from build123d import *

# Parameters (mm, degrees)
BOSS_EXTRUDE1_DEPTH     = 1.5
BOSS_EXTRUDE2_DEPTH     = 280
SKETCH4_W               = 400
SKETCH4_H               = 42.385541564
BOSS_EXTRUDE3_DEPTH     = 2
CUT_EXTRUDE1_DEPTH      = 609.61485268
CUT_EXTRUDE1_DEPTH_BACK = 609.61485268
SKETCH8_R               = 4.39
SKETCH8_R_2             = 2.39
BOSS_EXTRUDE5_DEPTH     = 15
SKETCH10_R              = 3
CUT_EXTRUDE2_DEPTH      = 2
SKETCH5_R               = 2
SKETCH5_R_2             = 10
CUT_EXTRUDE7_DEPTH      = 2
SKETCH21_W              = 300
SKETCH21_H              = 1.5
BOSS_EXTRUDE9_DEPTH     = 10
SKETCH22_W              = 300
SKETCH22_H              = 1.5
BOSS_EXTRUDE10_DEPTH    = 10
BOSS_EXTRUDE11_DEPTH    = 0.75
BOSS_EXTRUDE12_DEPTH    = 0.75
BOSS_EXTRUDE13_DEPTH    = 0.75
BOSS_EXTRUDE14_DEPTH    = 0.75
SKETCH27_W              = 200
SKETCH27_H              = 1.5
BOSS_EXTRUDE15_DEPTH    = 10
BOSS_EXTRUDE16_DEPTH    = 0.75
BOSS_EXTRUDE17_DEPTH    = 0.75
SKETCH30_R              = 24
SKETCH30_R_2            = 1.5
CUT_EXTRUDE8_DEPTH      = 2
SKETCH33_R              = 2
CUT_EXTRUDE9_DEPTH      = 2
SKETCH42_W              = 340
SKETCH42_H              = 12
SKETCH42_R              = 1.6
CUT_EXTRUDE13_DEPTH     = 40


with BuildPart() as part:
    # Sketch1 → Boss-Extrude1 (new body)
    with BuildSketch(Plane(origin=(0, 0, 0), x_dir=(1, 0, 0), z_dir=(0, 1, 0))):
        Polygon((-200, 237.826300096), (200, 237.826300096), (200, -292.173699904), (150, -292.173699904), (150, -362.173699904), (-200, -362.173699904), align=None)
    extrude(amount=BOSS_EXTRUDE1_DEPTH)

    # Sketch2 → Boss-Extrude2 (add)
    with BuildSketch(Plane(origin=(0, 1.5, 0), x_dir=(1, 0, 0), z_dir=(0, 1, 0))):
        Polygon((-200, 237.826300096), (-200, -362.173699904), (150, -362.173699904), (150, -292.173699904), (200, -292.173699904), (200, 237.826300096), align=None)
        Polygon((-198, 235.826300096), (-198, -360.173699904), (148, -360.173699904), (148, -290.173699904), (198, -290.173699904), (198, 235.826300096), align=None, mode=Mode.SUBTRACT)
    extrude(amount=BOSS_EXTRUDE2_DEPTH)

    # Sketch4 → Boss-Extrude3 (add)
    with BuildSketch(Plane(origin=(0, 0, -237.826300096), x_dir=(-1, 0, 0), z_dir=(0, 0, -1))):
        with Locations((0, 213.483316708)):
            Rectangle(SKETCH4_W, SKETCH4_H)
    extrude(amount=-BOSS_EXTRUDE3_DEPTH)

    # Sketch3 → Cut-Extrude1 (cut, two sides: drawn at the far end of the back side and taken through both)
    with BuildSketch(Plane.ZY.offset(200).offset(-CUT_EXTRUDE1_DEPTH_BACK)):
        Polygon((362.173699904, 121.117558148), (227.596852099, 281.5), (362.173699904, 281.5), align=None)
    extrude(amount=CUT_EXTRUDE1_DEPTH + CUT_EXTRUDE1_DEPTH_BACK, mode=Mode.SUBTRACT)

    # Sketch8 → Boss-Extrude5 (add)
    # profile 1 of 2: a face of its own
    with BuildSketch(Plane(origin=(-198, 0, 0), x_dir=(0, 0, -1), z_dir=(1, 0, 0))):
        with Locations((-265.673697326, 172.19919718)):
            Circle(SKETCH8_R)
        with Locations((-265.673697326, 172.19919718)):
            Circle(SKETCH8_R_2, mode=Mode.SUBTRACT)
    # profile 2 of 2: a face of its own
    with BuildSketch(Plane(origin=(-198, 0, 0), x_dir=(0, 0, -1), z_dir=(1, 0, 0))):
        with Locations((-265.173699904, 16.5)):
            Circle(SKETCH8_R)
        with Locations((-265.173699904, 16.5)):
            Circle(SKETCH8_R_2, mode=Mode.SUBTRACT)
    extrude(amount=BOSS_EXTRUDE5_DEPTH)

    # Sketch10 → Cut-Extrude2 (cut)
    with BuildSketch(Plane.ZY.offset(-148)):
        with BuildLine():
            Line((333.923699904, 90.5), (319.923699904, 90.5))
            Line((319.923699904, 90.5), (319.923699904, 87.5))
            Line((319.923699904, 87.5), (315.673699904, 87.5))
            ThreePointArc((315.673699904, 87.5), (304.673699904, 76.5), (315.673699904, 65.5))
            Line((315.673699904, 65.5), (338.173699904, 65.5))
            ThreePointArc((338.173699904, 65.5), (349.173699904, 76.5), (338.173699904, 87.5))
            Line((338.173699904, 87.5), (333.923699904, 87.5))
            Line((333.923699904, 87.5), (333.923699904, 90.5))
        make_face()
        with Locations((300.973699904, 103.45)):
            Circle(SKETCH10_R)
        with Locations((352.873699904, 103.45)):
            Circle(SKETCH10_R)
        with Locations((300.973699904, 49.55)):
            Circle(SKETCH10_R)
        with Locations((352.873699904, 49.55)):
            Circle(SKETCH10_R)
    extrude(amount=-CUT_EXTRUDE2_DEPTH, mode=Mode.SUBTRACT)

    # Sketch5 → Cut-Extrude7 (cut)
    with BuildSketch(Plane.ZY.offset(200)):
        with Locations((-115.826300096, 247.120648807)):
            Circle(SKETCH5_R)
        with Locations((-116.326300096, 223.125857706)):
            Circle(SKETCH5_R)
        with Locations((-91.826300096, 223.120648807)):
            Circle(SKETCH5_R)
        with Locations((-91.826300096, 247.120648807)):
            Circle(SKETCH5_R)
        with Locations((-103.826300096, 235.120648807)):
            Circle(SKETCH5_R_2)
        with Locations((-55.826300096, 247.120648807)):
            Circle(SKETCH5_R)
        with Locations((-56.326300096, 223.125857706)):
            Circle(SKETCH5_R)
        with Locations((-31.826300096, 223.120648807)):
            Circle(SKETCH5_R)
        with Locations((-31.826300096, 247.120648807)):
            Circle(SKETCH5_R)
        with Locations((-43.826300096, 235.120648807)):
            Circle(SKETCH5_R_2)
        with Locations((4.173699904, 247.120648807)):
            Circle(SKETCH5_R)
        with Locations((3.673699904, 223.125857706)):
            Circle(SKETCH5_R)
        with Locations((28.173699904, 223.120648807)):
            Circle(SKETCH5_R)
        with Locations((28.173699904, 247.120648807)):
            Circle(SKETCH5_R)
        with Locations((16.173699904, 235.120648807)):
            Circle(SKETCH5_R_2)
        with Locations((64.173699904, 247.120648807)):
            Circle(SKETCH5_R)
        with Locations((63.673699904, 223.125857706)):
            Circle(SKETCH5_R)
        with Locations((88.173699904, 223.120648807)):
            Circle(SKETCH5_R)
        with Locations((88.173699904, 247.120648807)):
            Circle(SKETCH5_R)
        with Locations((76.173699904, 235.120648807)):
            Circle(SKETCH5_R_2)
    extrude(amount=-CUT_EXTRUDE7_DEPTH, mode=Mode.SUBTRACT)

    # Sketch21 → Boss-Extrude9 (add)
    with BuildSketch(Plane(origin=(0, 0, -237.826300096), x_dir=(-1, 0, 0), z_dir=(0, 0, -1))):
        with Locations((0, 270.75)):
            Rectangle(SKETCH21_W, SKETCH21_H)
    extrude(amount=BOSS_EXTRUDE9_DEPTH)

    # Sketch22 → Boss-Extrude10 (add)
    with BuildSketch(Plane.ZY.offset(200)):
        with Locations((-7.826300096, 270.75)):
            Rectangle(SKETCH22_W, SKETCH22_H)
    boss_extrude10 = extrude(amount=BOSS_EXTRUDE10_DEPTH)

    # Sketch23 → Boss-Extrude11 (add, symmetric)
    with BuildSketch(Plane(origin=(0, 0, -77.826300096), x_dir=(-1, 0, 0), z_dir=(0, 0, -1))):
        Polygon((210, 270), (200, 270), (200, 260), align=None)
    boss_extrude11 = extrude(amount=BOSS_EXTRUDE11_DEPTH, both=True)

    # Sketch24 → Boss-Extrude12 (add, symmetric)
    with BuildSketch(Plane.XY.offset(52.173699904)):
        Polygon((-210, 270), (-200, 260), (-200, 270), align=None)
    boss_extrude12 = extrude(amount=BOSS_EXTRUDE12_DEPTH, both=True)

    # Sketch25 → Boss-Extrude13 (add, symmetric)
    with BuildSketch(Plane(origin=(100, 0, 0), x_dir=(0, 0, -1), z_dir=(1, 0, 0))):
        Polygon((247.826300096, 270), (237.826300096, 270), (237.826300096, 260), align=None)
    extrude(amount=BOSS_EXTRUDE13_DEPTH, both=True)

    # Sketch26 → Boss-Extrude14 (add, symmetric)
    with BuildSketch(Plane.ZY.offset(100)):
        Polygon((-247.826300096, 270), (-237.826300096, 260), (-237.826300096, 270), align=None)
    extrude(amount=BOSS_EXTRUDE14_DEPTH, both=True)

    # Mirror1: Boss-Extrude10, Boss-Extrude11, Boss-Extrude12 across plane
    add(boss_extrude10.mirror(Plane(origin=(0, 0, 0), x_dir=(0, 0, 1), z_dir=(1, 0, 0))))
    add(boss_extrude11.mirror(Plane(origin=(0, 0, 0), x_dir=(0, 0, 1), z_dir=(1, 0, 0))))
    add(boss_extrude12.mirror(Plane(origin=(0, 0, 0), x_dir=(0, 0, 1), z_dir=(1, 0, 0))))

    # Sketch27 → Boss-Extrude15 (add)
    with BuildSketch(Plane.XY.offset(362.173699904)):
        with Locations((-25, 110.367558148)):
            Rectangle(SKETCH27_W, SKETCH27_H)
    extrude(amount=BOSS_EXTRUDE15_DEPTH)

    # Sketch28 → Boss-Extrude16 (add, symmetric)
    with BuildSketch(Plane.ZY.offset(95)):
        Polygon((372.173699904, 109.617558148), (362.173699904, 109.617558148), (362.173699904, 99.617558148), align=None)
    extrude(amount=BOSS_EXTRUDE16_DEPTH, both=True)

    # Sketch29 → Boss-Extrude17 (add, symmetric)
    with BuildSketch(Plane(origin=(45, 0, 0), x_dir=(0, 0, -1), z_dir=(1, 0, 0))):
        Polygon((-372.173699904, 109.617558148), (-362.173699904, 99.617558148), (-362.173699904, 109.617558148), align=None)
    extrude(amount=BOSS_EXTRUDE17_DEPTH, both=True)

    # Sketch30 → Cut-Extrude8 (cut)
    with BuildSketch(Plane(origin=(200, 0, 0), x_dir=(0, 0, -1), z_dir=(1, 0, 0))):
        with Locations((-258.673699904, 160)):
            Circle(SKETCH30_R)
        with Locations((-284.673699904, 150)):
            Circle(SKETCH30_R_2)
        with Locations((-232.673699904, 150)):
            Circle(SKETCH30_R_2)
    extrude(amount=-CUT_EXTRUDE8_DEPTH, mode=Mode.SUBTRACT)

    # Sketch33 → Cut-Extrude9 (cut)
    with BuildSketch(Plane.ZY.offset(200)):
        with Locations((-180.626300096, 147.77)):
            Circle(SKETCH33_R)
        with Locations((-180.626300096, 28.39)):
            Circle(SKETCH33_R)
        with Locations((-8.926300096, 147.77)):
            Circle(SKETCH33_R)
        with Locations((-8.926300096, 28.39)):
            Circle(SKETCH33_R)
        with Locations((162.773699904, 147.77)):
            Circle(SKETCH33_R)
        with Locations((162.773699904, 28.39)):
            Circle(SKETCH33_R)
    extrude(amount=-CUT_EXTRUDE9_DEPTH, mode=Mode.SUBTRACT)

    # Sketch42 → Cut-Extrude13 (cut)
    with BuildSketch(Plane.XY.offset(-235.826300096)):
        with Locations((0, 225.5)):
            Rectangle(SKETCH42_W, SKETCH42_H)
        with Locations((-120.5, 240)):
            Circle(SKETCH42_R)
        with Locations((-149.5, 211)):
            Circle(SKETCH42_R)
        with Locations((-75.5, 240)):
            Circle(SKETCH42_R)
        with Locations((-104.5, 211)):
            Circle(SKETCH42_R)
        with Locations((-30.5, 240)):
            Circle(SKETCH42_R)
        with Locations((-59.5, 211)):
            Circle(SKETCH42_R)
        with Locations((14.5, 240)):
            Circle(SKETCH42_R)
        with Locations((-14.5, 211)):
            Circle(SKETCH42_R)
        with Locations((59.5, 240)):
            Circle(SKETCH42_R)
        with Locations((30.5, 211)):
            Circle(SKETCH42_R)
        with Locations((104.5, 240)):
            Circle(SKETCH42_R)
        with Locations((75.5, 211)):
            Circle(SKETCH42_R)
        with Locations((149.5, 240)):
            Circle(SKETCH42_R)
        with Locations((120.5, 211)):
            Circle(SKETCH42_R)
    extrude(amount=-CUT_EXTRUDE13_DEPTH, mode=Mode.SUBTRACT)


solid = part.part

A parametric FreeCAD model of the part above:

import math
import FreeCAD as App
import Part
import Sketcher
Q = App.Units.Quantity

doc = App.newDocument("Part")
body = doc.addObject("PartDesign::Body", "Body")

# Sketch on XZ plane
sketch1 = doc.addObject("Sketcher::SketchObject", "Sketch")
body.addObject(sketch1)
sketch1.AttachmentSupport = (doc.XZ_Plane, [""])
sketch1.MapMode = "FlatFace"
sketch1.addGeometry([
    Part.LineSegment(App.Vector(200, -237.8263, 0), App.Vector(-200, -237.8263, 0)),  # 0
    Part.LineSegment(App.Vector(-200, -237.8263, 0), App.Vector(-200, 362.1737, 0)),  # 1
    Part.LineSegment(App.Vector(-200, 362.1737, 0), App.Vector(150, 362.1737, 0)),  # 2
    Part.LineSegment(App.Vector(150, 362.1737, 0), App.Vector(150, 292.1737, 0)),  # 3
    Part.LineSegment(App.Vector(150, 292.1737, 0), App.Vector(200, 292.1737, 0)),  # 4
    Part.LineSegment(App.Vector(200, 292.1737, 0), App.Vector(200, -237.8263, 0)),  # 5
], False)
sketch1.addConstraint([
    Sketcher.Constraint("Coincident", 0, 2, 1, 1),
    Sketcher.Constraint("Coincident", 1, 2, 2, 1),
    Sketcher.Constraint("Coincident", 2, 2, 3, 1),
    Sketcher.Constraint("Coincident", 3, 2, 4, 1),
    Sketcher.Constraint("Coincident", 4, 2, 5, 1),
    Sketcher.Constraint("Coincident", 5, 2, 0, 1),
    Sketcher.Constraint("Horizontal", 0),
    Sketcher.Constraint("Vertical", 1),
    Sketcher.Constraint("Horizontal", 2),
    Sketcher.Constraint("Vertical", 3),
    Sketcher.Constraint("Horizontal", 4),
    Sketcher.Constraint("Vertical", 5),
    Sketcher.Constraint("DistanceX", 0, 2, 0, 1, Q("400 mm")),
    Sketcher.Constraint("DistanceX", 2, 1, 2, 2, Q("350 mm")),
    Sketcher.Constraint("DistanceY", 1, 1, 1, 2, Q("600 mm")),
    Sketcher.Constraint("DistanceY", 3, 2, 3, 1, Q("70 mm")),
    Sketcher.Constraint("DistanceX", 0, 2, -1, 1, Q("200 mm")),
    Sketcher.Constraint("DistanceY", 0, 2, -1, 1, Q("237.8263 mm")),
])
pad1 = doc.addObject("PartDesign::Pad", "Pad")
body.addObject(pad1)
pad1.Profile = sketch1
pad1.Length = 1.5
pad1.Reversed = True

# Sketch on XZ plane
sketch2 = doc.addObject("Sketcher::SketchObject", "Sketch001")
body.addObject(sketch2)
sketch2.AttachmentSupport = (doc.XZ_Plane, [""])
sketch2.MapMode = "FlatFace"
sketch2.AttachmentOffset = App.Placement(App.Vector(0, 0, -1.5), App.Rotation())
sketch2.addGeometry([
    Part.LineSegment(App.Vector(-200, -237.8263, 0), App.Vector(-200, 362.1737, 0)),  # 0
    Part.LineSegment(App.Vector(-200, 362.1737, 0), App.Vector(150, 362.1737, 0)),  # 1
    Part.LineSegment(App.Vector(150, 362.1737, 0), App.Vector(150, 292.1737, 0)),  # 2
    Part.LineSegment(App.Vector(150, 292.1737, 0), App.Vector(200, 292.1737, 0)),  # 3
    Part.LineSegment(App.Vector(200, 292.1737, 0), App.Vector(200, -237.8263, 0)),  # 4
    Part.LineSegment(App.Vector(200, -237.8263, 0), App.Vector(-200, -237.8263, 0)),  # 5
    Part.LineSegment(App.Vector(-198, 360.1737, 0), App.Vector(-198, -235.8263, 0)),  # 6
    Part.LineSegment(App.Vector(-198, -235.8263, 0), App.Vector(198, -235.8263, 0)),  # 7
    Part.LineSegment(App.Vector(198, -235.8263, 0), App.Vector(198, 290.1737, 0)),  # 8
    Part.LineSegment(App.Vector(198, 290.1737, 0), App.Vector(148, 290.1737, 0)),  # 9
    Part.LineSegment(App.Vector(148, 290.1737, 0), App.Vector(148, 360.1737, 0)),  # 10
    Part.LineSegment(App.Vector(148, 360.1737, 0), App.Vector(-198, 360.1737, 0)),  # 11
], False)
sketch2.addConstraint([
    Sketcher.Constraint("Coincident", 0, 2, 1, 1),
    Sketcher.Constraint("Coincident", 1, 2, 2, 1),
    Sketcher.Constraint("Coincident", 2, 2, 3, 1),
    Sketcher.Constraint("Coincident", 3, 2, 4, 1),
    Sketcher.Constraint("Coincident", 4, 2, 5, 1),
    Sketcher.Constraint("Coincident", 5, 2, 0, 1),
    Sketcher.Constraint("Coincident", 6, 2, 7, 1),
    Sketcher.Constraint("Coincident", 7, 2, 8, 1),
    Sketcher.Constraint("Coincident", 8, 2, 9, 1),
    Sketcher.Constraint("Coincident", 9, 2, 10, 1),
    Sketcher.Constraint("Coincident", 10, 2, 11, 1),
    Sketcher.Constraint("Coincident", 11, 2, 6, 1),
    Sketcher.Constraint("Vertical", 0),
    Sketcher.Constraint("Horizontal", 1),
    Sketcher.Constraint("Vertical", 2),
    Sketcher.Constraint("Horizontal", 3),
    Sketcher.Constraint("Vertical", 4),
    Sketcher.Constraint("Horizontal", 5),
    Sketcher.Constraint("Vertical", 6),
    Sketcher.Constraint("Horizontal", 7),
    Sketcher.Constraint("Vertical", 8),
    Sketcher.Constraint("Horizontal", 9),
    Sketcher.Constraint("Vertical", 10),
    Sketcher.Constraint("Horizontal", 11),
    Sketcher.Constraint("Equal", 3, 9),
    Sketcher.Constraint("Equal", 2, 10),
    Sketcher.Constraint("DistanceX", 1, 1, 1, 2, Q("350 mm")),
    Sketcher.Constraint("DistanceX", 3, 1, 3, 2, Q("50 mm")),
    Sketcher.Constraint("DistanceX", 7, 1, 7, 2, Q("396 mm")),
    Sketcher.Constraint("DistanceY", 0, 1, 0, 2, Q("600 mm")),
    Sketcher.Constraint("DistanceY", 2, 2, 2, 1, Q("70 mm")),
    Sketcher.Constraint("DistanceY", 6, 2, 6, 1, Q("596 mm")),
    Sketcher.Constraint("DistanceX", 0, 2, -1, 1, Q("200 mm")),
    Sketcher.Constraint("DistanceX", 6, 2, -1, 1, Q("198 mm")),
    Sketcher.Constraint("DistanceY", 5, 2, 6, 2, Q("2 mm")),
    Sketcher.Constraint("DistanceY", -1, 1, 0, 2, Q("362.1737 mm")),
])
pad2 = doc.addObject("PartDesign::Pad", "Pad001")
body.addObject(pad2)
pad2.Profile = sketch2
pad2.Length = 280
pad2.Reversed = True

# Sketch on XY plane
sketch3 = doc.addObject("Sketcher::SketchObject", "Sketch002")
body.addObject(sketch3)
sketch3.AttachmentSupport = (doc.XY_Plane, [""])
sketch3.MapMode = "FlatFace"
sketch3.AttachmentOffset = App.Placement(App.Vector(0, 0, -237.8263), App.Rotation())
sketch3.addGeometry([
    Part.LineSegment(App.Vector(200, 234.676087, 0), App.Vector(200, 192.290546, 0)),
    Part.LineSegment(App.Vector(200, 192.290546, 0), App.Vector(-200, 192.290546, 0)),
    Part.LineSegment(App.Vector(-200, 192.290546, 0), App.Vector(-200, 234.676087, 0)),
    Part.LineSegment(App.Vector(-200, 234.676087, 0), App.Vector(200, 234.676087, 0)),
], False)
sketch3.addConstraint([
    Sketcher.Constraint("Coincident", 0, 2, 1, 1),
    Sketcher.Constraint("Coincident", 1, 2, 2, 1),
    Sketcher.Constraint("Coincident", 2, 2, 3, 1),
    Sketcher.Constraint("Coincident", 3, 2, 0, 1),
    Sketcher.Constraint("Vertical", 0),
    Sketcher.Constraint("Horizontal", 1),
    Sketcher.Constraint("Vertical", 2),
    Sketcher.Constraint("Horizontal", 3),
    Sketcher.Constraint("DistanceX", 1, 2, 1, 1, Q("400 mm")),
    Sketcher.Constraint("DistanceX", -1, 1, 0, 2, Q("200 mm")),
    Sketcher.Constraint("DistanceY", 0, 2, 0, 1, Q("42.385542 mm")),
    Sketcher.Constraint("DistanceY", -1, 1, 0, 2, Q("192.290546 mm")),
])
pad3 = doc.addObject("PartDesign::Pad", "Pad002")
body.addObject(pad3)
pad3.Profile = sketch3
pad3.Length = 2

# Sketch on YZ plane
sketch4 = doc.addObject("Sketcher::SketchObject", "Sketch003")
body.addObject(sketch4)
sketch4.AttachmentSupport = (doc.YZ_Plane, [""])
sketch4.MapMode = "FlatFace"
sketch4.AttachmentOffset = App.Placement(App.Vector(0, 0, -200), App.Rotation())
sketch4.addGeometry([
    Part.LineSegment(App.Vector(281.5, 227.596852, 0), App.Vector(121.117558, 362.1737, 0)),
    Part.LineSegment(App.Vector(121.117558, 362.1737, 0), App.Vector(281.5, 362.1737, 0)),
    Part.LineSegment(App.Vector(281.5, 362.1737, 0), App.Vector(281.5, 227.596852, 0)),
], False)
sketch4.addConstraint([
    Sketcher.Constraint("Coincident", 0, 2, 1, 1),
    Sketcher.Constraint("Coincident", 1, 2, 2, 1),
    Sketcher.Constraint("Coincident", 2, 2, 0, 1),
    Sketcher.Constraint("Horizontal", 1),
    Sketcher.Constraint("Vertical", 2),
    Sketcher.Constraint("Angle", 0, Q("140 deg")),
    Sketcher.Constraint("DistanceX", -1, 1, 1, 2, Q("281.5 mm")),
    Sketcher.Constraint("DistanceX", 1, 1, 1, 2, Q("160.382442 mm")),
    Sketcher.Constraint("DistanceY", -1, 1, 0, 2, Q("362.1737 mm")),
])
pocket1 = doc.addObject("PartDesign::Pocket", "Pocket")
body.addObject(pocket1)
pocket1.Profile = sketch4
pocket1.Type = "ThroughAll"
pocket1.Midplane = True

# Sketch on YZ plane
sketch5 = doc.addObject("Sketcher::SketchObject", "Sketch004")
body.addObject(sketch5)
sketch5.AttachmentSupport = (doc.YZ_Plane, [""])
sketch5.MapMode = "FlatFace"
sketch5.AttachmentOffset = App.Placement(App.Vector(0, 0, -198), App.Rotation())
sketch5.addGeometry([
    Part.Circle(App.Vector(172.199197, 265.673697, 0), App.Vector(0, 0, 1), 4.39),
    Part.Circle(App.Vector(172.199197, 265.673697, 0), App.Vector(0, 0, 1), 2.39),
    Part.Circle(App.Vector(16.5, 265.1737, 0), App.Vector(0, 0, 1), 4.39),
    Part.Circle(App.Vector(16.5, 265.1737, 0), App.Vector(0, 0, 1), 2.39),
], False)
sketch5.addConstraint([
    Sketcher.Constraint("Coincident", 1, 3, 0, 3),
    Sketcher.Constraint("Coincident", 3, 3, 2, 3),
    Sketcher.Constraint("Equal", 0, 2),
    Sketcher.Constraint("Equal", 1, 3),
    Sketcher.Constraint("Diameter", 0, Q("8.78 mm")),
    Sketcher.Constraint("Diameter", 1, Q("4.78 mm")),
    Sketcher.Constraint("DistanceX", -1, 1, 2, 3, Q("16.5 mm")),
    Sketcher.Constraint("DistanceY", -1, 1, 2, 3, Q("265.1737 mm")),
    Sketcher.Constraint("DistanceX", -1, 1, 0, 3, Q("172.199197 mm")),
    Sketcher.Constraint("DistanceY", -1, 1, 0, 3, Q("265.673697 mm")),
])
pad4 = doc.addObject("PartDesign::Pad", "Pad003")
body.addObject(pad4)
pad4.Profile = sketch5
pad4.Length = 15

# Sketch on YZ plane
sketch6 = doc.addObject("Sketcher::SketchObject", "Sketch005")
body.addObject(sketch6)
sketch6.AttachmentSupport = (doc.YZ_Plane, [""])
sketch6.MapMode = "FlatFace"
sketch6.AttachmentOffset = App.Placement(App.Vector(0, 0, 148), App.Rotation())
sketch6.addGeometry([
    Part.LineSegment(App.Vector(90.5, 333.9237, 0), App.Vector(90.5, 319.9237, 0)),  # 0
    Part.LineSegment(App.Vector(90.5, 319.9237, 0), App.Vector(87.5, 319.9237, 0)),  # 1
    Part.LineSegment(App.Vector(87.5, 319.9237, 0), App.Vector(87.5, 315.6737, 0)),  # 2
    Part.ArcOfCircle(Part.Circle(App.Vector(76.5, 315.6737, 0), App.Vector(0, 0, 1), 11), math.radians(180), math.radians(360)),  # 3
    Part.LineSegment(App.Vector(65.5, 315.6737, 0), App.Vector(65.5, 338.1737, 0)),  # 4
    Part.ArcOfCircle(Part.Circle(App.Vector(76.5, 338.1737, 0), App.Vector(0, 0, 1), 11), math.radians(0), math.radians(180)),  # 5
    Part.LineSegment(App.Vector(87.5, 338.1737, 0), App.Vector(87.5, 333.9237, 0)),  # 6
    Part.LineSegment(App.Vector(87.5, 333.9237, 0), App.Vector(90.5, 333.9237, 0)),  # 7
    Part.Circle(App.Vector(103.45, 300.9737, 0), App.Vector(0, 0, 1), 3),  # 8
    Part.Circle(App.Vector(103.45, 352.8737, 0), App.Vector(0, 0, 1), 3),  # 9
    Part.Circle(App.Vector(49.55, 300.9737, 0), App.Vector(0, 0, 1), 3),  # 10
    Part.Circle(App.Vector(49.55, 352.8737, 0), App.Vector(0, 0, 1), 3),  # 11
], False)
sketch6.addConstraint([
    Sketcher.Constraint("Coincident", 0, 2, 1, 1),
    Sketcher.Constraint("Coincident", 1, 2, 2, 1),
    Sketcher.Constraint("Tangent", 2, 2, 3, 2),
    Sketcher.Constraint("Tangent", 3, 1, 4, 1),
    Sketcher.Constraint("Tangent", 4, 2, 5, 2),
    Sketcher.Constraint("Tangent", 5, 1, 6, 1),
    Sketcher.Constraint("Coincident", 6, 2, 7, 1),
    Sketcher.Constraint("Coincident", 7, 2, 0, 1),
    Sketcher.Constraint("Vertical", 0),
    Sketcher.Constraint("Horizontal", 1),
    Sketcher.Constraint("Vertical", 2),
    Sketcher.Constraint("Vertical", 4),
    Sketcher.Constraint("Vertical", 6),
    Sketcher.Constraint("Horizontal", 7),
    Sketcher.Constraint("Equal", 3, 5),
    Sketcher.Constraint("Equal", 8, 9),
    Sketcher.Constraint("Equal", 9, 10),
    Sketcher.Constraint("Equal", 10, 11),
    Sketcher.Constraint("Horizontal", 8, 3, 10, 3),
    Sketcher.Constraint("Horizontal", 9, 3, 11, 3),
    Sketcher.Constraint("Vertical", 8, 3, 9, 3),
    Sketcher.Constraint("Vertical", 10, 3, 11, 3),
    Sketcher.Constraint("Equal", 2, 6),
    Sketcher.Constraint("Diameter", 8, Q("6 mm")),
    Sketcher.Constraint("Radius", 3, Q("11 mm")),
    Sketcher.Constraint("DistanceX", 1, 2, 1, 1, Q("3 mm")),
    Sketcher.Constraint("DistanceY", 0, 2, 0, 1, Q("14 mm")),
    Sketcher.Constraint("DistanceY", 4, 1, 4, 2, Q("22.5 mm")),
    Sketcher.Constraint("DistanceX", -1, 1, 3, 3, Q("76.5 mm")),
    Sketcher.Constraint("DistanceY", 8, 3, 3, 3, Q("14.7 mm")),
    Sketcher.Constraint("DistanceY", 5, 3, 9, 3, Q("14.7 mm")),
    Sketcher.Constraint("DistanceX", 10, 3, 8, 3, Q("53.9 mm")),
    Sketcher.Constraint("DistanceX", -1, 1, 8, 3, Q("103.45 mm")),
    Sketcher.Constraint("DistanceY", -1, 1, 3, 3, Q("315.6737 mm")),
])
pocket2 = doc.addObject("PartDesign::Pocket", "Pocket001")
body.addObject(pocket2)
pocket2.Profile = sketch6
pocket2.Length = 2
pocket2.Reversed = True

# Sketch on YZ plane
sketch7 = doc.addObject("Sketcher::SketchObject", "Sketch006")
body.addObject(sketch7)
sketch7.AttachmentSupport = (doc.YZ_Plane, [""])
sketch7.MapMode = "FlatFace"
sketch7.AttachmentOffset = App.Placement(App.Vector(0, 0, -200), App.Rotation())
sketch7.addGeometry([
    Part.Circle(App.Vector(247.120649, -115.8263, 0), App.Vector(0, 0, 1), 2),  # 0
    Part.Circle(App.Vector(223.125858, -116.3263, 0), App.Vector(0, 0, 1), 2),  # 1
    Part.Circle(App.Vector(223.120649, -91.8263, 0), App.Vector(0, 0, 1), 2),  # 2
    Part.Circle(App.Vector(247.120649, -91.8263, 0), App.Vector(0, 0, 1), 2),  # 3
    Part.Circle(App.Vector(235.120649, -103.8263, 0), App.Vector(0, 0, 1), 10),  # 4
    Part.Circle(App.Vector(247.120649, -55.8263, 0), App.Vector(0, 0, 1), 2),  # 5
    Part.Circle(App.Vector(223.125858, -56.3263, 0), App.Vector(0, 0, 1), 2),  # 6
    Part.Circle(App.Vector(223.120649, -31.8263, 0), App.Vector(0, 0, 1), 2),  # 7
    Part.Circle(App.Vector(247.120649, -31.8263, 0), App.Vector(0, 0, 1), 2),  # 8
    Part.Circle(App.Vector(235.120649, -43.8263, 0), App.Vector(0, 0, 1), 10),  # 9
    Part.Circle(App.Vector(247.120649, 4.1737, 0), App.Vector(0, 0, 1), 2),  # 10
    Part.Circle(App.Vector(223.125858, 3.6737, 0), App.Vector(0, 0, 1), 2),  # 11
    Part.Circle(App.Vector(223.120649, 28.1737, 0), App.Vector(0, 0, 1), 2),  # 12
    Part.Circle(App.Vector(247.120649, 28.1737, 0), App.Vector(0, 0, 1), 2),  # 13
    Part.Circle(App.Vector(235.120649, 16.1737, 0), App.Vector(0, 0, 1), 10),  # 14
    Part.Circle(App.Vector(247.120649, 64.1737, 0), App.Vector(0, 0, 1), 2),  # 15
    Part.Circle(App.Vector(223.125858, 63.6737, 0), App.Vector(0, 0, 1), 2),  # 16
    Part.Circle(App.Vector(223.120649, 88.1737, 0), App.Vector(0, 0, 1), 2),  # 17
    Part.Circle(App.Vector(247.120649, 88.1737, 0), App.Vector(0, 0, 1), 2),  # 18
    Part.Circle(App.Vector(235.120649, 76.1737, 0), App.Vector(0, 0, 1), 10),  # 19
], False)
sketch7.addConstraint([
    Sketcher.Constraint("Equal", 0, 1),
    Sketcher.Constraint("Equal", 1, 2),
    Sketcher.Constraint("Equal", 2, 3),
    Sketcher.Constraint("Equal", 3, 5),
    Sketcher.Constraint("Equal", 5, 6),
    Sketcher.Constraint("Equal", 6, 7),
    Sketcher.Constraint("Equal", 7, 8),
    Sketcher.Constraint("Equal", 4, 9),
    Sketcher.Constraint("Equal", 8, 10),
    Sketcher.Constraint("Equal", 10, 11),
    Sketcher.Constraint("Equal", 11, 12),
    Sketcher.Constraint("Equal", 12, 13),
    Sketcher.Constraint("Equal", 9, 14),
    Sketcher.Constraint("Equal", 13, 15),
    Sketcher.Constraint("Equal", 15, 16),
    Sketcher.Constraint("Equal", 16, 17),
    Sketcher.Constraint("Equal", 17, 18),
    Sketcher.Constraint("Equal", 14, 19),
    Sketcher.Constraint("Horizontal", 2, 3, 3, 3),
    Sketcher.Constraint("Horizontal", 7, 3, 8, 3),
    Sketcher.Constraint("Horizontal", 12, 3, 13, 3),
    Sketcher.Constraint("Horizontal", 17, 3, 18, 3),
    Sketcher.Constraint("Vertical", 0, 3, 3, 3),
    Sketcher.Constraint("Vertical", 3, 3, 5, 3),
    Sketcher.Constraint("Vertical", 1, 3, 6, 3),
    Sketcher.Constraint("Vertical", 2, 3, 7, 3),
    Sketcher.Constraint("Vertical", 5, 3, 8, 3),
    Sketcher.Constraint("Vertical", 4, 3, 9, 3),
    Sketcher.Constraint("Vertical", 8, 3, 10, 3),
    Sketcher.Constraint("Vertical", 6, 3, 11, 3),
    Sketcher.Constraint("Vertical", 7, 3, 12, 3),
    Sketcher.Constraint("Vertical", 10, 3, 13, 3),
    Sketcher.Constraint("Vertical", 9, 3, 14, 3),
    Sketcher.Constraint("Vertical", 13, 3, 15, 3),
    Sketcher.Constraint("Vertical", 11, 3, 16, 3),
    Sketcher.Constraint("Vertical", 12, 3, 17, 3),
    Sketcher.Constraint("Vertical", 15, 3, 18, 3),
    Sketcher.Constraint("Vertical", 14, 3, 19, 3),
    Sketcher.Constraint("Diameter", 0, Q("4 mm")),
    Sketcher.Constraint("Diameter", 4, Q("20 mm")),
    Sketcher.Constraint("DistanceX", 2, 3, 0, 3, Q("24 mm")),
    Sketcher.Constraint("DistanceY", 0, 3, 2, 3, Q("24 mm")),
    Sketcher.Constraint("DistanceX", 4, 3, 0, 3, Q("12 mm")),
    Sketcher.Constraint("DistanceY", 0, 3, 4, 3, Q("12 mm")),
    Sketcher.Constraint("DistanceY", 3, 3, 5, 3, Q("36 mm")),
    Sketcher.Constraint("DistanceY", 1, 3, 6, 3, Q("60 mm")),
    Sketcher.Constraint("DistanceY", 5, 3, 7, 3, Q("24 mm")),
    Sketcher.Constraint("DistanceY", 5, 3, 9, 3, Q("12 mm")),
    Sketcher.Constraint("DistanceY", 8, 3, 10, 3, Q("36 mm")),
    Sketcher.Constraint("DistanceY", 6, 3, 11, 3, Q("60 mm")),
    Sketcher.Constraint("DistanceY", 10, 3, 12, 3, Q("24 mm")),
    Sketcher.Constraint("DistanceY", 10, 3, 14, 3, Q("12 mm")),
    Sketcher.Constraint("DistanceY", 13, 3, 15, 3, Q("36 mm")),
    Sketcher.Constraint("DistanceY", 11, 3, 16, 3, Q("60 mm")),
    Sketcher.Constraint("DistanceY", 15, 3, 17, 3, Q("24 mm")),
    Sketcher.Constraint("DistanceY", 15, 3, 19, 3, Q("12 mm")),
    Sketcher.Constraint("DistanceY", 1, 3, 0, 3, Q("0.5 mm")),
    Sketcher.Constraint("DistanceY", 0, 3, -1, 1, Q("115.8263 mm")),
    Sketcher.Constraint("DistanceX", -1, 1, 0, 3, Q("247.120649 mm")),
    Sketcher.Constraint("DistanceX", 1, 3, 0, 3, Q("23.994791 mm")),
])
pocket3 = doc.addObject("PartDesign::Pocket", "Pocket002")
body.addObject(pocket3)
pocket3.Profile = sketch7
pocket3.Length = 2
pocket3.Reversed = True

# Sketch on XY plane
sketch8 = doc.addObject("Sketcher::SketchObject", "Sketch007")
body.addObject(sketch8)
sketch8.AttachmentSupport = (doc.XY_Plane, [""])
sketch8.MapMode = "FlatFace"
sketch8.AttachmentOffset = App.Placement(App.Vector(0, 0, -237.8263), App.Rotation())
sketch8.addGeometry([
    Part.LineSegment(App.Vector(150, 271.5, 0), App.Vector(150, 270, 0)),
    Part.LineSegment(App.Vector(150, 270, 0), App.Vector(-150, 270, 0)),
    Part.LineSegment(App.Vector(-150, 270, 0), App.Vector(-150, 271.5, 0)),
    Part.LineSegment(App.Vector(-150, 271.5, 0), App.Vector(150, 271.5, 0)),
], False)
sketch8.addConstraint([
    Sketcher.Constraint("Coincident", 0, 2, 1, 1),
    Sketcher.Constraint("Coincident", 1, 2, 2, 1),
    Sketcher.Constraint("Coincident", 2, 2, 3, 1),
    Sketcher.Constraint("Coincident", 3, 2, 0, 1),
    Sketcher.Constraint("Vertical", 0),
    Sketcher.Constraint("Horizontal", 1),
    Sketcher.Constraint("Vertical", 2),
    Sketcher.Constraint("Horizontal", 3),
    Sketcher.Constraint("DistanceX", 1, 2, 1, 1, Q("300 mm")),
    Sketcher.Constraint("DistanceY", 0, 2, 0, 1, Q("1.5 mm")),
    Sketcher.Constraint("DistanceX", -1, 1, 0, 2, Q("150 mm")),
    Sketcher.Constraint("DistanceY", -1, 1, 0, 2, Q("270 mm")),
])
pad5 = doc.addObject("PartDesign::Pad", "Pad004")
body.addObject(pad5)
pad5.Profile = sketch8
pad5.Length = 10
pad5.Reversed = True

# Sketch on YZ plane
sketch9 = doc.addObject("Sketcher::SketchObject", "Sketch008")
body.addObject(sketch9)
sketch9.AttachmentSupport = (doc.YZ_Plane, [""])
sketch9.MapMode = "FlatFace"
sketch9.AttachmentOffset = App.Placement(App.Vector(0, 0, -200), App.Rotation())
sketch9.addGeometry([
    Part.LineSegment(App.Vector(271.5, -157.8263, 0), App.Vector(270, -157.8263, 0)),
    Part.LineSegment(App.Vector(270, -157.8263, 0), App.Vector(270, 142.1737, 0)),
    Part.LineSegment(App.Vector(270, 142.1737, 0), App.Vector(271.5, 142.1737, 0)),
    Part.LineSegment(App.Vector(271.5, 142.1737, 0), App.Vector(271.5, -157.8263, 0)),
], False)
sketch9.addConstraint([
    Sketcher.Constraint("Coincident", 0, 2, 1, 1),
    Sketcher.Constraint("Coincident", 1, 2, 2, 1),
    Sketcher.Constraint("Coincident", 2, 2, 3, 1),
    Sketcher.Constraint("Coincident", 3, 2, 0, 1),
    Sketcher.Constraint("Horizontal", 0),
    Sketcher.Constraint("Vertical", 1),
    Sketcher.Constraint("Horizontal", 2),
    Sketcher.Constraint("Vertical", 3),
    Sketcher.Constraint("DistanceY", 1, 1, 1, 2, Q("300 mm")),
    Sketcher.Constraint("DistanceX", 0, 2, 0, 1, Q("1.5 mm")),
    Sketcher.Constraint("DistanceX", -1, 1, 0, 2, Q("270 mm")),
    Sketcher.Constraint("DistanceY", 0, 2, -1, 1, Q("157.8263 mm")),
])
pad6 = doc.addObject("PartDesign::Pad", "Pad005")
body.addObject(pad6)
pad6.Profile = sketch9
pad6.Length = 10
pad6.Reversed = True

# Sketch on XY plane
sketch10 = doc.addObject("Sketcher::SketchObject", "Sketch009")
body.addObject(sketch10)
sketch10.AttachmentSupport = (doc.XY_Plane, [""])
sketch10.MapMode = "FlatFace"
sketch10.AttachmentOffset = App.Placement(App.Vector(0, 0, -77.8263), App.Rotation())
sketch10.addGeometry([
    Part.LineSegment(App.Vector(-210, 270, 0), App.Vector(-200, 270, 0)),
    Part.LineSegment(App.Vector(-200, 270, 0), App.Vector(-200, 260, 0)),
    Part.LineSegment(App.Vector(-200, 260, 0), App.Vector(-210, 270, 0)),
], False)
sketch10.addConstraint([
    Sketcher.Constraint("Coincident", 0, 2, 1, 1),
    Sketcher.Constraint("Coincident", 1, 2, 2, 1),
    Sketcher.Constraint("Coincident", 2, 2, 0, 1),
    Sketcher.Constraint("Horizontal", 0),
    Sketcher.Constraint("Vertical", 1),
    Sketcher.Constraint("Equal", 0, 1),
    Sketcher.Constraint("DistanceX", 0, 1, 0, 2, Q("10 mm")),
    Sketcher.Constraint("DistanceX", 0, 2, -1, 1, Q("200 mm")),
    Sketcher.Constraint("DistanceY", -1, 1, 0, 2, Q("270 mm")),
])
pad7 = doc.addObject("PartDesign::Pad", "Pad006")
body.addObject(pad7)
pad7.Profile = sketch10
pad7.Length = 1.5
pad7.Midplane = True

# Sketch on XY plane
sketch11 = doc.addObject("Sketcher::SketchObject", "Sketch010")
body.addObject(sketch11)
sketch11.AttachmentSupport = (doc.XY_Plane, [""])
sketch11.MapMode = "FlatFace"
sketch11.AttachmentOffset = App.Placement(App.Vector(0, 0, 52.1737), App.Rotation())
sketch11.addGeometry([
    Part.LineSegment(App.Vector(-210, 270, 0), App.Vector(-200, 260, 0)),
    Part.LineSegment(App.Vector(-200, 260, 0), App.Vector(-200, 270, 0)),
    Part.LineSegment(App.Vector(-200, 270, 0), App.Vector(-210, 270, 0)),
], False)
sketch11.addConstraint([
    Sketcher.Constraint("Coincident", 0, 2, 1, 1),
    Sketcher.Constraint("Coincident", 1, 2, 2, 1),
    Sketcher.Constraint("Coincident", 2, 2, 0, 1),
    Sketcher.Constraint("Vertical", 1),
    Sketcher.Constraint("Horizontal", 2),
    Sketcher.Constraint("Equal", 2, 1),
    Sketcher.Constraint("DistanceX", 2, 2, 2, 1, Q("10 mm")),
    Sketcher.Constraint("DistanceX", 0, 2, -1, 1, Q("200 mm")),
    Sketcher.Constraint("DistanceY", -1, 1, 0, 2, Q("260 mm")),
])
pad8 = doc.addObject("PartDesign::Pad", "Pad007")
body.addObject(pad8)
pad8.Profile = sketch11
pad8.Length = 1.5
pad8.Midplane = True

# Sketch on YZ plane
sketch12 = doc.addObject("Sketcher::SketchObject", "Sketch011")
body.addObject(sketch12)
sketch12.AttachmentSupport = (doc.YZ_Plane, [""])
sketch12.MapMode = "FlatFace"
sketch12.AttachmentOffset = App.Placement(App.Vector(0, 0, 100), App.Rotation())
sketch12.addGeometry([
    Part.LineSegment(App.Vector(270, -247.8263, 0), App.Vector(270, -237.8263, 0)),
    Part.LineSegment(App.Vector(270, -237.8263, 0), App.Vector(260, -237.8263, 0)),
    Part.LineSegment(App.Vector(260, -237.8263, 0), App.Vector(270, -247.8263, 0)),
], False)
sketch12.addConstraint([
    Sketcher.Constraint("Coincident", 0, 2, 1, 1),
    Sketcher.Constraint("Coincident", 1, 2, 2, 1),
    Sketcher.Constraint("Coincident", 2, 2, 0, 1),
    Sketcher.Constraint("Vertical", 0),
    Sketcher.Constraint("Horizontal", 1),
    Sketcher.Constraint("Equal", 1, 0),
    Sketcher.Constraint("DistanceX", 1, 2, 1, 1, Q("10 mm")),
    Sketcher.Constraint("DistanceX", -1, 1, 0, 2, Q("270 mm")),
    Sketcher.Constraint("DistanceY", 0, 2, -1, 1, Q("237.8263 mm")),
])
pad9 = doc.addObject("PartDesign::Pad", "Pad008")
body.addObject(pad9)
pad9.Profile = sketch12
pad9.Length = 1.5
pad9.Midplane = True

# Sketch on YZ plane
sketch13 = doc.addObject("Sketcher::SketchObject", "Sketch012")
body.addObject(sketch13)
sketch13.AttachmentSupport = (doc.YZ_Plane, [""])
sketch13.MapMode = "FlatFace"
sketch13.AttachmentOffset = App.Placement(App.Vector(0, 0, -100), App.Rotation())
sketch13.addGeometry([
    Part.LineSegment(App.Vector(270, -247.8263, 0), App.Vector(260, -237.8263, 0)),
    Part.LineSegment(App.Vector(260, -237.8263, 0), App.Vector(270, -237.8263, 0)),
    Part.LineSegment(App.Vector(270, -237.8263, 0), App.Vector(270, -247.8263, 0)),
], False)
sketch13.addConstraint([
    Sketcher.Constraint("Coincident", 0, 2, 1, 1),
    Sketcher.Constraint("Coincident", 1, 2, 2, 1),
    Sketcher.Constraint("Coincident", 2, 2, 0, 1),
    Sketcher.Constraint("Horizontal", 1),
    Sketcher.Constraint("Vertical", 2),
    Sketcher.Constraint("Equal", 1, 2),
    Sketcher.Constraint("DistanceX", 1, 1, 1, 2, Q("10 mm")),
    Sketcher.Constraint("DistanceX", -1, 1, 0, 2, Q("260 mm")),
    Sketcher.Constraint("DistanceY", 0, 2, -1, 1, Q("237.8263 mm")),
])
pad10 = doc.addObject("PartDesign::Pad", "Pad009")
body.addObject(pad10)
pad10.Profile = sketch13
pad10.Length = 1.5
pad10.Midplane = True
doc.recompute()

mirrored = doc.addObject("PartDesign::Mirrored", "Mirrored")
body.addObject(mirrored)
mirrored.Originals = [pad6, pad7, pad8]
mirrored.MirrorPlane = (doc.YZ_Plane, [""])
body.Tip = mirrored

# Sketch on XY plane
sketch14 = doc.addObject("Sketcher::SketchObject", "Sketch013")
body.addObject(sketch14)
sketch14.AttachmentSupport = (doc.XY_Plane, [""])
sketch14.MapMode = "FlatFace"
sketch14.AttachmentOffset = App.Placement(App.Vector(0, 0, 362.1737), App.Rotation())
sketch14.addGeometry([
    Part.LineSegment(App.Vector(-125, 111.117558, 0), App.Vector(-125, 109.617558, 0)),
    Part.LineSegment(App.Vector(-125, 109.617558, 0), App.Vector(75, 109.617558, 0)),
    Part.LineSegment(App.Vector(75, 109.617558, 0), App.Vector(75, 111.117558, 0)),
    Part.LineSegment(App.Vector(75, 111.117558, 0), App.Vector(-125, 111.117558, 0)),
], False)
sketch14.addConstraint([
    Sketcher.Constraint("Coincident", 0, 2, 1, 1),
    Sketcher.Constraint("Coincident", 1, 2, 2, 1),
    Sketcher.Constraint("Coincident", 2, 2, 3, 1),
    Sketcher.Constraint("Coincident", 3, 2, 0, 1),
    Sketcher.Constraint("Vertical", 0),
    Sketcher.Constraint("Horizontal", 1),
    Sketcher.Constraint("Vertical", 2),
    Sketcher.Constraint("Horizontal", 3),
    Sketcher.Constraint("DistanceX", 1, 1, 1, 2, Q("200 mm")),
    Sketcher.Constraint("DistanceY", 0, 2, 0, 1, Q("1.5 mm")),
    Sketcher.Constraint("DistanceX", 0, 2, -1, 1, Q("125 mm")),
    Sketcher.Constraint("DistanceY", -1, 1, 0, 2, Q("109.617558 mm")),
])
pad11 = doc.addObject("PartDesign::Pad", "Pad010")
body.addObject(pad11)
pad11.Profile = sketch14
pad11.Length = 10

# Sketch on YZ plane
sketch15 = doc.addObject("Sketcher::SketchObject", "Sketch014")
body.addObject(sketch15)
sketch15.AttachmentSupport = (doc.YZ_Plane, [""])
sketch15.MapMode = "FlatFace"
sketch15.AttachmentOffset = App.Placement(App.Vector(0, 0, -95), App.Rotation())
sketch15.addGeometry([
    Part.LineSegment(App.Vector(109.617558, 372.1737, 0), App.Vector(109.617558, 362.1737, 0)),
    Part.LineSegment(App.Vector(109.617558, 362.1737, 0), App.Vector(99.617558, 362.1737, 0)),
    Part.LineSegment(App.Vector(99.617558, 362.1737, 0), App.Vector(109.617558, 372.1737, 0)),
], False)
sketch15.addConstraint([
    Sketcher.Constraint("Coincident", 0, 2, 1, 1),
    Sketcher.Constraint("Coincident", 1, 2, 2, 1),
    Sketcher.Constraint("Coincident", 2, 2, 0, 1),
    Sketcher.Constraint("Vertical", 0),
    Sketcher.Constraint("Horizontal", 1),
    Sketcher.Constraint("Equal", 1, 0),
    Sketcher.Constraint("DistanceX", 1, 2, 1, 1, Q("10 mm")),
    Sketcher.Constraint("DistanceY", -1, 1, 0, 2, Q("362.1737 mm")),
    Sketcher.Constraint("DistanceX", -1, 1, 0, 2, Q("109.617558 mm")),
])
pad12 = doc.addObject("PartDesign::Pad", "Pad011")
body.addObject(pad12)
pad12.Profile = sketch15
pad12.Length = 1.5
pad12.Midplane = True

# Sketch on YZ plane
sketch16 = doc.addObject("Sketcher::SketchObject", "Sketch015")
body.addObject(sketch16)
sketch16.AttachmentSupport = (doc.YZ_Plane, [""])
sketch16.MapMode = "FlatFace"
sketch16.AttachmentOffset = App.Placement(App.Vector(0, 0, 45), App.Rotation())
sketch16.addGeometry([
    Part.LineSegment(App.Vector(109.617558, 372.1737, 0), App.Vector(99.617558, 362.1737, 0)),
    Part.LineSegment(App.Vector(99.617558, 362.1737, 0), App.Vector(109.617558, 362.1737, 0)),
    Part.LineSegment(App.Vector(109.617558, 362.1737, 0), App.Vector(109.617558, 372.1737, 0)),
], False)
sketch16.addConstraint([
    Sketcher.Constraint("Coincident", 0, 2, 1, 1),
    Sketcher.Constraint("Coincident", 1, 2, 2, 1),
    Sketcher.Constraint("Coincident", 2, 2, 0, 1),
    Sketcher.Constraint("Horizontal", 1),
    Sketcher.Constraint("Vertical", 2),
    Sketcher.Constraint("Equal", 1, 2),
    Sketcher.Constraint("DistanceX", 1, 1, 1, 2, Q("10 mm")),
    Sketcher.Constraint("DistanceY", -1, 1, 0, 2, Q("362.1737 mm")),
    Sketcher.Constraint("DistanceX", -1, 1, 0, 2, Q("99.617558 mm")),
])
pad13 = doc.addObject("PartDesign::Pad", "Pad012")
body.addObject(pad13)
pad13.Profile = sketch16
pad13.Length = 1.5
pad13.Midplane = True

# Sketch on YZ plane
sketch17 = doc.addObject("Sketcher::SketchObject", "Sketch016")
body.addObject(sketch17)
sketch17.AttachmentSupport = (doc.YZ_Plane, [""])
sketch17.MapMode = "FlatFace"
sketch17.AttachmentOffset = App.Placement(App.Vector(0, 0, 200), App.Rotation())
sketch17.addGeometry([
    Part.Circle(App.Vector(160, 258.6737, 0), App.Vector(0, 0, 1), 24),
    Part.Circle(App.Vector(150, 284.6737, 0), App.Vector(0, 0, 1), 1.5),
    Part.Circle(App.Vector(150, 232.6737, 0), App.Vector(0, 0, 1), 1.5),
], False)
sketch17.addConstraint([
    Sketcher.Constraint("Equal", 1, 2),
    Sketcher.Constraint("Vertical", 1, 3, 2, 3),
    Sketcher.Constraint("Diameter", 0, Q("48 mm")),
    Sketcher.Constraint("Diameter", 1, Q("3 mm")),
    Sketcher.Constraint("DistanceX", -1, 1, 0, 3, Q("160 mm")),
    Sketcher.Constraint("DistanceX", -1, 1, 1, 3, Q("150 mm")),
    Sketcher.Constraint("DistanceY", 0, 3, 1, 3, Q("26 mm")),
    Sketcher.Constraint("DistanceY", 2, 3, 0, 3, Q("26 mm")),
    Sketcher.Constraint("DistanceY", -1, 1, 0, 3, Q("258.6737 mm")),
])
pocket4 = doc.addObject("PartDesign::Pocket", "Pocket003")
body.addObject(pocket4)
pocket4.Profile = sketch17
pocket4.Length = 2

# Sketch on YZ plane
sketch18 = doc.addObject("Sketcher::SketchObject", "Sketch017")
body.addObject(sketch18)
sketch18.AttachmentSupport = (doc.YZ_Plane, [""])
sketch18.MapMode = "FlatFace"
sketch18.AttachmentOffset = App.Placement(App.Vector(0, 0, -200), App.Rotation())
sketch18.addGeometry([
    Part.Circle(App.Vector(147.77, -180.6263, 0), App.Vector(0, 0, 1), 2),  # 0
    Part.Circle(App.Vector(28.39, -180.6263, 0), App.Vector(0, 0, 1), 2),  # 1
    Part.Circle(App.Vector(147.77, -8.9263, 0), App.Vector(0, 0, 1), 2),  # 2
    Part.Circle(App.Vector(28.39, -8.9263, 0), App.Vector(0, 0, 1), 2),  # 3
    Part.Circle(App.Vector(147.77, 162.7737, 0), App.Vector(0, 0, 1), 2),  # 4
    Part.Circle(App.Vector(28.39, 162.7737, 0), App.Vector(0, 0, 1), 2),  # 5
], False)
sketch18.addConstraint([
    Sketcher.Constraint("Equal", 0, 1),
    Sketcher.Constraint("Equal", 1, 2),
    Sketcher.Constraint("Equal", 2, 3),
    Sketcher.Constraint("Equal", 3, 4),
    Sketcher.Constraint("Equal", 4, 5),
    Sketcher.Constraint("Horizontal", 0, 3, 1, 3),
    Sketcher.Constraint("Horizontal", 2, 3, 3, 3),
    Sketcher.Constraint("Horizontal", 4, 3, 5, 3),
    Sketcher.Constraint("Vertical", 0, 3, 2, 3),
    Sketcher.Constraint("Vertical", 1, 3, 3, 3),
    Sketcher.Constraint("Vertical", 2, 3, 4, 3),
    Sketcher.Constraint("Vertical", 3, 3, 5, 3),
    Sketcher.Constraint("Diameter", 0, Q("4 mm")),
    Sketcher.Constraint("DistanceY", 0, 3, 2, 3, Q("171.7 mm")),
    Sketcher.Constraint("DistanceY", 2, 3, 4, 3, Q("171.7 mm")),
    Sketcher.Constraint("DistanceX", -1, 1, 0, 3, Q("147.77 mm")),
    Sketcher.Constraint("DistanceX", -1, 1, 1, 3, Q("28.39 mm")),
    Sketcher.Constraint("DistanceY", 0, 3, -1, 1, Q("180.6263 mm")),
])
pocket5 = doc.addObject("PartDesign::Pocket", "Pocket004")
body.addObject(pocket5)
pocket5.Profile = sketch18
pocket5.Length = 2
pocket5.Reversed = True

# Sketch on XY plane
sketch19 = doc.addObject("Sketcher::SketchObject", "Sketch018")
body.addObject(sketch19)
sketch19.AttachmentSupport = (doc.XY_Plane, [""])
sketch19.MapMode = "FlatFace"
sketch19.AttachmentOffset = App.Placement(App.Vector(0, 0, -235.8263), App.Rotation())
sketch19.addGeometry([
    Part.LineSegment(App.Vector(-170, 231.5, 0), App.Vector(-170, 219.5, 0)),  # 0
    Part.LineSegment(App.Vector(-170, 219.5, 0), App.Vector(170, 219.5, 0)),  # 1
    Part.LineSegment(App.Vector(170, 219.5, 0), App.Vector(170, 231.5, 0)),  # 2
    Part.LineSegment(App.Vector(170, 231.5, 0), App.Vector(-170, 231.5, 0)),  # 3
    Part.Circle(App.Vector(-120.5, 240, 0), App.Vector(0, 0, 1), 1.6),  # 4
    Part.Circle(App.Vector(-149.5, 211, 0), App.Vector(0, 0, 1), 1.6),  # 5
    Part.Circle(App.Vector(-75.5, 240, 0), App.Vector(0, 0, 1), 1.6),  # 6
    Part.Circle(App.Vector(-104.5, 211, 0), App.Vector(0, 0, 1), 1.6),  # 7
    Part.Circle(App.Vector(-30.5, 240, 0), App.Vector(0, 0, 1), 1.6),  # 8
    Part.Circle(App.Vector(-59.5, 211, 0), App.Vector(0, 0, 1), 1.6),  # 9
    Part.Circle(App.Vector(14.5, 240, 0), App.Vector(0, 0, 1), 1.6),  # 10
    Part.Circle(App.Vector(-14.5, 211, 0), App.Vector(0, 0, 1), 1.6),  # 11
    Part.Circle(App.Vector(59.5, 240, 0), App.Vector(0, 0, 1), 1.6),  # 12
    Part.Circle(App.Vector(30.5, 211, 0), App.Vector(0, 0, 1), 1.6),  # 13
    Part.Circle(App.Vector(104.5, 240, 0), App.Vector(0, 0, 1), 1.6),  # 14
    Part.Circle(App.Vector(75.5, 211, 0), App.Vector(0, 0, 1), 1.6),  # 15
    Part.Circle(App.Vector(149.5, 240, 0), App.Vector(0, 0, 1), 1.6),  # 16
    Part.Circle(App.Vector(120.5, 211, 0), App.Vector(0, 0, 1), 1.6),  # 17
], False)
sketch19.addConstraint([
    Sketcher.Constraint("Coincident", 0, 2, 1, 1),
    Sketcher.Constraint("Coincident", 1, 2, 2, 1),
    Sketcher.Constraint("Coincident", 2, 2, 3, 1),
    Sketcher.Constraint("Coincident", 3, 2, 0, 1),
    Sketcher.Constraint("Vertical", 0),
    Sketcher.Constraint("Horizontal", 1),
    Sketcher.Constraint("Vertical", 2),
    Sketcher.Constraint("Horizontal", 3),
    Sketcher.Constraint("Equal", 4, 5),
    Sketcher.Constraint("Equal", 5, 6),
    Sketcher.Constraint("Equal", 6, 7),
    Sketcher.Constraint("Equal", 7, 8),
    Sketcher.Constraint("Equal", 8, 9),
    Sketcher.Constraint("Equal", 9, 10),
    Sketcher.Constraint("Equal", 10, 11),
    Sketcher.Constraint("Equal", 11, 12),
    Sketcher.Constraint("Equal", 12, 13),
    Sketcher.Constraint("Equal", 13, 14),
    Sketcher.Constraint("Equal", 14, 15),
    Sketcher.Constraint("Equal", 15, 16),
    Sketcher.Constraint("Equal", 16, 17),
    Sketcher.Constraint("Horizontal", 4, 3, 6, 3),
    Sketcher.Constraint("Horizontal", 5, 3, 7, 3),
    Sketcher.Constraint("Horizontal", 6, 3, 8, 3),
    Sketcher.Constraint("Horizontal", 7, 3, 9, 3),
    Sketcher.Constraint("Horizontal", 8, 3, 10, 3),
    Sketcher.Constraint("Horizontal", 9, 3, 11, 3),
    Sketcher.Constraint("Horizontal", 10, 3, 12, 3),
    Sketcher.Constraint("Horizontal", 11, 3, 13, 3),
    Sketcher.Constraint("Horizontal", 12, 3, 14, 3),
    Sketcher.Constraint("Horizontal", 13, 3, 15, 3),
    Sketcher.Constraint("Horizontal", 14, 3, 16, 3),
    Sketcher.Constraint("Horizontal", 15, 3, 17, 3),
    Sketcher.Constraint("Diameter", 4, Q("3.2 mm")),
    Sketcher.Constraint("DistanceX", 1, 1, 1, 2, Q("340 mm")),
    Sketcher.Constraint("DistanceY", 0, 2, 0, 1, Q("12 mm")),
    Sketcher.Constraint("DistanceY", -1, 1, 4, 3, Q("240 mm")),
    Sketcher.Constraint("DistanceY", -1, 1, 5, 3, Q("211 mm")),
    Sketcher.Constraint("DistanceX", 0, 2, -1, 1, Q("170 mm")),
    Sketcher.Constraint("DistanceX", 5, 3, 4, 3, Q("29 mm")),
    Sketcher.Constraint("DistanceX", 4, 3, 6, 3, Q("45 mm")),
    Sketcher.Constraint("DistanceX", 4, 3, 7, 3, Q("16 mm")),
    Sketcher.Constraint("DistanceX", 6, 3, 8, 3, Q("45 mm")),
    Sketcher.Constraint("DistanceX", 6, 3, 9, 3, Q("16 mm")),
    Sketcher.Constraint("DistanceX", 8, 3, 10, 3, Q("45 mm")),
    Sketcher.Constraint("DistanceX", 8, 3, 11, 3, Q("16 mm")),
    Sketcher.Constraint("DistanceX", 10, 3, 12, 3, Q("45 mm")),
    Sketcher.Constraint("DistanceX", 10, 3, 13, 3, Q("16 mm")),
    Sketcher.Constraint("DistanceX", 12, 3, 14, 3, Q("45 mm")),
    Sketcher.Constraint("DistanceX", 12, 3, 15, 3, Q("16 mm")),
    Sketcher.Constraint("DistanceX", 14, 3, 16, 3, Q("45 mm")),
    Sketcher.Constraint("DistanceX", 14, 3, 17, 3, Q("16 mm")),
    Sketcher.Constraint("DistanceX", 4, 3, -1, 1, Q("120.5 mm")),
    Sketcher.Constraint("DistanceY", -1, 1, 0, 2, Q("219.5 mm")),
])
pocket6 = doc.addObject("PartDesign::Pocket", "Pocket005")
body.addObject(pocket6)
pocket6.Profile = sketch19
pocket6.Length = 40

doc.recompute()
